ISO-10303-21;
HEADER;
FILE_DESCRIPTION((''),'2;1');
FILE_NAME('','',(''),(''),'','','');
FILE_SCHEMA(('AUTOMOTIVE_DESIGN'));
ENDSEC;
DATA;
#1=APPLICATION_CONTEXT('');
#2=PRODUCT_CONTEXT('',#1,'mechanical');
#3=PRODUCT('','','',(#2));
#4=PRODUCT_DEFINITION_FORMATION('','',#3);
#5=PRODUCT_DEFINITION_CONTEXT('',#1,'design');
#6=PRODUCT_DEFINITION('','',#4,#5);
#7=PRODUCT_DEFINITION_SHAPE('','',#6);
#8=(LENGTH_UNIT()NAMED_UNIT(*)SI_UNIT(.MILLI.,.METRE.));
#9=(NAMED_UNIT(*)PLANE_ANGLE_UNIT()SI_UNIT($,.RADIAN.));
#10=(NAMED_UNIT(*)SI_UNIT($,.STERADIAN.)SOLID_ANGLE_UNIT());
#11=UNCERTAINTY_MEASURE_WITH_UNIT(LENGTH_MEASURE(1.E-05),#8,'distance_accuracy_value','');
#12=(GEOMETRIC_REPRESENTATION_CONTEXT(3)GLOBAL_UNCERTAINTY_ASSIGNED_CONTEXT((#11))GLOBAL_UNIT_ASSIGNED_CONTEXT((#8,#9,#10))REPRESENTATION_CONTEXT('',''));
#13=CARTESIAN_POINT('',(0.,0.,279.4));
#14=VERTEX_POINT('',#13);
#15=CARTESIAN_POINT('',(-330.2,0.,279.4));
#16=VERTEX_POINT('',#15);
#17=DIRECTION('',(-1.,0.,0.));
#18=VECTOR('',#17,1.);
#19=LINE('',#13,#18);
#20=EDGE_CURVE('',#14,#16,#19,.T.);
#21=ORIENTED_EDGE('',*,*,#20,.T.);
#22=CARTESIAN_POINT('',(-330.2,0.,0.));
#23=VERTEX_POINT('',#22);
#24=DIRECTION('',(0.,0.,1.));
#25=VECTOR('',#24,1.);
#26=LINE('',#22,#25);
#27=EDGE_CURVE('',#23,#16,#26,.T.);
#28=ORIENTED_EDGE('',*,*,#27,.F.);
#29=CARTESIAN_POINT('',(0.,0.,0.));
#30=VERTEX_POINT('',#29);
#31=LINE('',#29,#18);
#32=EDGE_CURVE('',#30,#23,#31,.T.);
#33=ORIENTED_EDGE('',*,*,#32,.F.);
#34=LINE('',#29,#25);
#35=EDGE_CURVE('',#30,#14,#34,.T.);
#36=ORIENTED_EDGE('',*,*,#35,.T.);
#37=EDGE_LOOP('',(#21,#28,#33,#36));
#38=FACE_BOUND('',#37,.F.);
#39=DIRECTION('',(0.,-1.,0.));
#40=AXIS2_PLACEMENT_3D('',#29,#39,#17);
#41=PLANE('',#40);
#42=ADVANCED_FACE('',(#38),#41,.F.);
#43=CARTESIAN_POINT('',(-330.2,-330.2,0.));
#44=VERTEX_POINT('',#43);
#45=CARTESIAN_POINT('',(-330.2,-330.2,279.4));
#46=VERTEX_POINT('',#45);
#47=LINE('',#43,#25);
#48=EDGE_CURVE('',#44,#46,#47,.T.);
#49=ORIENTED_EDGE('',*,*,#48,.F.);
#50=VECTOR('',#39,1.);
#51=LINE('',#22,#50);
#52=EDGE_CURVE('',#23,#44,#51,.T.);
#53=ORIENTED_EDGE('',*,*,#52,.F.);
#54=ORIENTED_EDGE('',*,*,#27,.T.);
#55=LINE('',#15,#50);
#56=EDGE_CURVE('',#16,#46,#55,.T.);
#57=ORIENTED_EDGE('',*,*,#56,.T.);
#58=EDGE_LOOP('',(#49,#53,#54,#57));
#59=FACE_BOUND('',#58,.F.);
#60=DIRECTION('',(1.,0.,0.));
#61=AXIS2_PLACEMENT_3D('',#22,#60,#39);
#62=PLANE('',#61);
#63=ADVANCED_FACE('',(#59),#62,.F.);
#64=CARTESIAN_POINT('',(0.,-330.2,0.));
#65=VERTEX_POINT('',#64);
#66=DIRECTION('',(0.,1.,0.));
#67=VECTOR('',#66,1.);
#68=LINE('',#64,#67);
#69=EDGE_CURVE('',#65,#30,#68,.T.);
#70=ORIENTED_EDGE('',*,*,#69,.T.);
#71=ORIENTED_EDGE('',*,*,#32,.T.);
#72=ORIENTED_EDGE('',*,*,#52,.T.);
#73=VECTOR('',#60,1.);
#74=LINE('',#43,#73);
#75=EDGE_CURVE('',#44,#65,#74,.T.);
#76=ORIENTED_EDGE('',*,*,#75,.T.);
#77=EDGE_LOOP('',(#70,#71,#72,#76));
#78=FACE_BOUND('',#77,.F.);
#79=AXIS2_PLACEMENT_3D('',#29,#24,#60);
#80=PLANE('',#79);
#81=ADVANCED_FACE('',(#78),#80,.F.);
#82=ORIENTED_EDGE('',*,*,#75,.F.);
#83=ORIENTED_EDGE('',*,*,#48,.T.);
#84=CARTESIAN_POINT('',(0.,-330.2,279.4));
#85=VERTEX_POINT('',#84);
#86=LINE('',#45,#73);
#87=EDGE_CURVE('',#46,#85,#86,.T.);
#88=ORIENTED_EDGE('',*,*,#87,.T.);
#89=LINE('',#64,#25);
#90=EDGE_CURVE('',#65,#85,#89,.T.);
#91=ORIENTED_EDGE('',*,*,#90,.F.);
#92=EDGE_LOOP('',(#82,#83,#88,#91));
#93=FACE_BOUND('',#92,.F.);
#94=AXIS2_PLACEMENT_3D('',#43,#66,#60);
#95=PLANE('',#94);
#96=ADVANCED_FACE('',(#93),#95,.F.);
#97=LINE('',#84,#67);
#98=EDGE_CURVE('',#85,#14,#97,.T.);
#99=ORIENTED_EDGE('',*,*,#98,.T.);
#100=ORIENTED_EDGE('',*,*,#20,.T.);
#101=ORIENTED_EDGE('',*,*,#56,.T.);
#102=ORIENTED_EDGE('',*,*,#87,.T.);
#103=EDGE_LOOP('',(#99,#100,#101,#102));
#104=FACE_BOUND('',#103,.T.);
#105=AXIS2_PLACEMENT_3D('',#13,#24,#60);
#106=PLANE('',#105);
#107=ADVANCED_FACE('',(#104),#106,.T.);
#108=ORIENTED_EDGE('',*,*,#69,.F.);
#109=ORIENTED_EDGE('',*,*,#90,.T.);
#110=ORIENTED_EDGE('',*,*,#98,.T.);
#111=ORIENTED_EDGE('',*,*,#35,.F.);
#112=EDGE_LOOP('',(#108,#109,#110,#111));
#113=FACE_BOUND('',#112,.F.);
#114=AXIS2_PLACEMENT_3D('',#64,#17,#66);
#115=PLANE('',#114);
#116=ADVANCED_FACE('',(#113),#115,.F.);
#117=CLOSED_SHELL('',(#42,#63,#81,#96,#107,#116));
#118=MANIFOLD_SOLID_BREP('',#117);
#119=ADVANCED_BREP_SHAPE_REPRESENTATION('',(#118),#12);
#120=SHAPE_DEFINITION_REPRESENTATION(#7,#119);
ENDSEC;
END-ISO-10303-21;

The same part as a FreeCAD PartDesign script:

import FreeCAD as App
import Part
import Sketcher
Q = App.Units.Quantity


def add_polygon(sketch, points):
    """Adds a closed chain of lines whose ends are joined by coincident constraints."""
    first, n = sketch.GeometryCount, len(points)
    for a, b in zip(points, points[1:] + points[:1]):
        sketch.addGeometry(Part.LineSegment(App.Vector(*a, 0), App.Vector(*b, 0)), False)
    for i in range(n):
        sketch.addConstraint(Sketcher.Constraint("Coincident", first + i, 2, first + (i + 1) % n, 1))

doc = App.newDocument("Part")
body = doc.addObject("PartDesign::Body", "Body")

# Sketch on XY plane
sketch1 = doc.addObject("Sketcher::SketchObject", "Sketch")
body.addObject(sketch1)
sketch1.AttachmentSupport = (doc.XY_Plane, [""])
sketch1.MapMode = "FlatFace"
add_polygon(sketch1, [(0, -330.2), (0, 0), (-330.2, 0), (-330.2, -330.2)])  # lines 0-3
sketch1.addConstraint(Sketcher.Constraint("Vertical", 0))
sketch1.addConstraint(Sketcher.Constraint("Horizontal", 1))
sketch1.addConstraint(Sketcher.Constraint("Vertical", 2))
sketch1.addConstraint(Sketcher.Constraint("Horizontal", 3))
sketch1.addConstraint(Sketcher.Constraint("Coincident", 0, 2, -1, 1))
sketch1.addConstraint(Sketcher.Constraint("Equal", 3, 0))
sketch1.addConstraint(Sketcher.Constraint("DistanceX", 1, 2, 1, 1, Q("13 in")))
pad1 = doc.addObject("PartDesign::Pad", "Pad")
body.addObject(pad1)
pad1.Profile = sketch1
pad1.Length = Q("11 in")

doc.recompute()
